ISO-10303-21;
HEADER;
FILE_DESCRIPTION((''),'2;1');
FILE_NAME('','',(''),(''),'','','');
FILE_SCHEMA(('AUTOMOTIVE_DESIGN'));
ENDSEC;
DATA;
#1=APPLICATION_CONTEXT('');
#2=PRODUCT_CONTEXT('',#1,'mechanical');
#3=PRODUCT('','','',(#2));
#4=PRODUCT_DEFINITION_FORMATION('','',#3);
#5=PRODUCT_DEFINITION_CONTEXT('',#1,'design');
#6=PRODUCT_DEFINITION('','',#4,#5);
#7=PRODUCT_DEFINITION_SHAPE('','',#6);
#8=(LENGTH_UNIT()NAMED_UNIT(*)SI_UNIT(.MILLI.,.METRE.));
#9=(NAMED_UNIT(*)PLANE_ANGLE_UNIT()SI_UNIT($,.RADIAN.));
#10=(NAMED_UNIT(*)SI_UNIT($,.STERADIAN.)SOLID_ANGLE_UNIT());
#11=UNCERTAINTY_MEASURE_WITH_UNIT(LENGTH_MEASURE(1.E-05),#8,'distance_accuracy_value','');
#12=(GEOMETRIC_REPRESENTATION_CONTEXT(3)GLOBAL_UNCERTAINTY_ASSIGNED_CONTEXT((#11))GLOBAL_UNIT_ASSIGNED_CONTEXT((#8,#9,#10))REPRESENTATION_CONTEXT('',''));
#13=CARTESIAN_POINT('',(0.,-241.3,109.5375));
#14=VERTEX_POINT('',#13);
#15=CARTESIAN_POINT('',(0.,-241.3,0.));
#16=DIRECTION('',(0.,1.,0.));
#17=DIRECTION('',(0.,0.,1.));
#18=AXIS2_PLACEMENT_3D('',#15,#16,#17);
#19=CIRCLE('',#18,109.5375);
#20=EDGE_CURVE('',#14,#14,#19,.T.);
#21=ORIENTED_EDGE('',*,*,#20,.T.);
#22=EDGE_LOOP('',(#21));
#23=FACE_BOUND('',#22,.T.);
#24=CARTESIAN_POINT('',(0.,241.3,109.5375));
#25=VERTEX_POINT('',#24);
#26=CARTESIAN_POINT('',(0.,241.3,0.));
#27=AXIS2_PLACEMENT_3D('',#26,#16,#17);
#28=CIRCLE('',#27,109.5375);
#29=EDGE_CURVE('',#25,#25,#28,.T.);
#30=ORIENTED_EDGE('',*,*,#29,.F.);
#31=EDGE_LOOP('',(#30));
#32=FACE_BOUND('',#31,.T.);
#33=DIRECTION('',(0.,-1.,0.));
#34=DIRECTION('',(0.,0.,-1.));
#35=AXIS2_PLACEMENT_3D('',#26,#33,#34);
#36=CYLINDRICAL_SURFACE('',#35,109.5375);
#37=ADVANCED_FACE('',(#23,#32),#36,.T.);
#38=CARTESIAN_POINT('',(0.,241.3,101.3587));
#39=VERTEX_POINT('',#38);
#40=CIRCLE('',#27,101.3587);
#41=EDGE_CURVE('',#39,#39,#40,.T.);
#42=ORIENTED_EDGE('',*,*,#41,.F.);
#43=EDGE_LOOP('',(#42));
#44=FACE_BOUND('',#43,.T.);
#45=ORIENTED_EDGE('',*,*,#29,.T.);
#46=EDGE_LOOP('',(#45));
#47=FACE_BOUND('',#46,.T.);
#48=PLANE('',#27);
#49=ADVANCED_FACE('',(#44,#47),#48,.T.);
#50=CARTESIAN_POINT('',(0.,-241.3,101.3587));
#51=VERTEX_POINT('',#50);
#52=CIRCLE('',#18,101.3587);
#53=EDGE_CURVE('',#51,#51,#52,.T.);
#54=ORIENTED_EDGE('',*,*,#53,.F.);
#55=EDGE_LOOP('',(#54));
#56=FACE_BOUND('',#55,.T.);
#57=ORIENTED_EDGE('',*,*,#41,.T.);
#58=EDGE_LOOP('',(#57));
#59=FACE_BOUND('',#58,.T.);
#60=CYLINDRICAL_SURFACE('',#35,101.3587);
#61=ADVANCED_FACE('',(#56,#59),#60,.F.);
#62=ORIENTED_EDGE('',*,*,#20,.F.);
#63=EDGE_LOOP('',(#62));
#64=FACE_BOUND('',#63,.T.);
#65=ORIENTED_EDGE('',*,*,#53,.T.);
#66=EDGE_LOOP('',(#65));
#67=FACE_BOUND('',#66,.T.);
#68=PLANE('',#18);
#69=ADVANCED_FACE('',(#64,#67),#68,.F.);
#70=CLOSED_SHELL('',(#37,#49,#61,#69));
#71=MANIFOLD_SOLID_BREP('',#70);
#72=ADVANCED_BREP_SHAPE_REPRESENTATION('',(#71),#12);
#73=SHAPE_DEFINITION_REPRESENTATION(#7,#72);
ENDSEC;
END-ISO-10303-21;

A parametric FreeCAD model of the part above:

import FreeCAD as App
import Part
import Sketcher
Q = App.Units.Quantity

doc = App.newDocument("Part")
body = doc.addObject("PartDesign::Body", "Body")

# Sketch on XZ plane
sketch1 = body.newObject("Sketcher::SketchObject", "Sketch")
sketch1.AttachmentSupport = (doc.getObject("XZ_Plane"), [""])
sketch1.MapMode = "FlatFace"
sketch1.addGeometry(Part.Circle(App.Vector(0, 0, 0), App.Vector(0, 0, 1), 110), False)
sketch1.addGeometry(Part.Circle(App.Vector(0, 0, 0), App.Vector(0, 0, 1), 101), False)
sketch1.addConstraint(Sketcher.Constraint("Coincident", 0, 3, -1, 1))
sketch1.addConstraint(Sketcher.Constraint("Coincident", 1, 3, -1, 1))
sketch1.addConstraint(Sketcher.Constraint("Diameter", 0, Q("8.625 in")))
sketch1.addConstraint(Sketcher.Constraint("Diameter", 1, Q("7.981 in")))
pad1 = body.newObject("PartDesign::Pad", "Pad")
pad1.Profile = sketch1
pad1.Length = Q("19 in")
pad1.Midplane = True

doc.recompute()
